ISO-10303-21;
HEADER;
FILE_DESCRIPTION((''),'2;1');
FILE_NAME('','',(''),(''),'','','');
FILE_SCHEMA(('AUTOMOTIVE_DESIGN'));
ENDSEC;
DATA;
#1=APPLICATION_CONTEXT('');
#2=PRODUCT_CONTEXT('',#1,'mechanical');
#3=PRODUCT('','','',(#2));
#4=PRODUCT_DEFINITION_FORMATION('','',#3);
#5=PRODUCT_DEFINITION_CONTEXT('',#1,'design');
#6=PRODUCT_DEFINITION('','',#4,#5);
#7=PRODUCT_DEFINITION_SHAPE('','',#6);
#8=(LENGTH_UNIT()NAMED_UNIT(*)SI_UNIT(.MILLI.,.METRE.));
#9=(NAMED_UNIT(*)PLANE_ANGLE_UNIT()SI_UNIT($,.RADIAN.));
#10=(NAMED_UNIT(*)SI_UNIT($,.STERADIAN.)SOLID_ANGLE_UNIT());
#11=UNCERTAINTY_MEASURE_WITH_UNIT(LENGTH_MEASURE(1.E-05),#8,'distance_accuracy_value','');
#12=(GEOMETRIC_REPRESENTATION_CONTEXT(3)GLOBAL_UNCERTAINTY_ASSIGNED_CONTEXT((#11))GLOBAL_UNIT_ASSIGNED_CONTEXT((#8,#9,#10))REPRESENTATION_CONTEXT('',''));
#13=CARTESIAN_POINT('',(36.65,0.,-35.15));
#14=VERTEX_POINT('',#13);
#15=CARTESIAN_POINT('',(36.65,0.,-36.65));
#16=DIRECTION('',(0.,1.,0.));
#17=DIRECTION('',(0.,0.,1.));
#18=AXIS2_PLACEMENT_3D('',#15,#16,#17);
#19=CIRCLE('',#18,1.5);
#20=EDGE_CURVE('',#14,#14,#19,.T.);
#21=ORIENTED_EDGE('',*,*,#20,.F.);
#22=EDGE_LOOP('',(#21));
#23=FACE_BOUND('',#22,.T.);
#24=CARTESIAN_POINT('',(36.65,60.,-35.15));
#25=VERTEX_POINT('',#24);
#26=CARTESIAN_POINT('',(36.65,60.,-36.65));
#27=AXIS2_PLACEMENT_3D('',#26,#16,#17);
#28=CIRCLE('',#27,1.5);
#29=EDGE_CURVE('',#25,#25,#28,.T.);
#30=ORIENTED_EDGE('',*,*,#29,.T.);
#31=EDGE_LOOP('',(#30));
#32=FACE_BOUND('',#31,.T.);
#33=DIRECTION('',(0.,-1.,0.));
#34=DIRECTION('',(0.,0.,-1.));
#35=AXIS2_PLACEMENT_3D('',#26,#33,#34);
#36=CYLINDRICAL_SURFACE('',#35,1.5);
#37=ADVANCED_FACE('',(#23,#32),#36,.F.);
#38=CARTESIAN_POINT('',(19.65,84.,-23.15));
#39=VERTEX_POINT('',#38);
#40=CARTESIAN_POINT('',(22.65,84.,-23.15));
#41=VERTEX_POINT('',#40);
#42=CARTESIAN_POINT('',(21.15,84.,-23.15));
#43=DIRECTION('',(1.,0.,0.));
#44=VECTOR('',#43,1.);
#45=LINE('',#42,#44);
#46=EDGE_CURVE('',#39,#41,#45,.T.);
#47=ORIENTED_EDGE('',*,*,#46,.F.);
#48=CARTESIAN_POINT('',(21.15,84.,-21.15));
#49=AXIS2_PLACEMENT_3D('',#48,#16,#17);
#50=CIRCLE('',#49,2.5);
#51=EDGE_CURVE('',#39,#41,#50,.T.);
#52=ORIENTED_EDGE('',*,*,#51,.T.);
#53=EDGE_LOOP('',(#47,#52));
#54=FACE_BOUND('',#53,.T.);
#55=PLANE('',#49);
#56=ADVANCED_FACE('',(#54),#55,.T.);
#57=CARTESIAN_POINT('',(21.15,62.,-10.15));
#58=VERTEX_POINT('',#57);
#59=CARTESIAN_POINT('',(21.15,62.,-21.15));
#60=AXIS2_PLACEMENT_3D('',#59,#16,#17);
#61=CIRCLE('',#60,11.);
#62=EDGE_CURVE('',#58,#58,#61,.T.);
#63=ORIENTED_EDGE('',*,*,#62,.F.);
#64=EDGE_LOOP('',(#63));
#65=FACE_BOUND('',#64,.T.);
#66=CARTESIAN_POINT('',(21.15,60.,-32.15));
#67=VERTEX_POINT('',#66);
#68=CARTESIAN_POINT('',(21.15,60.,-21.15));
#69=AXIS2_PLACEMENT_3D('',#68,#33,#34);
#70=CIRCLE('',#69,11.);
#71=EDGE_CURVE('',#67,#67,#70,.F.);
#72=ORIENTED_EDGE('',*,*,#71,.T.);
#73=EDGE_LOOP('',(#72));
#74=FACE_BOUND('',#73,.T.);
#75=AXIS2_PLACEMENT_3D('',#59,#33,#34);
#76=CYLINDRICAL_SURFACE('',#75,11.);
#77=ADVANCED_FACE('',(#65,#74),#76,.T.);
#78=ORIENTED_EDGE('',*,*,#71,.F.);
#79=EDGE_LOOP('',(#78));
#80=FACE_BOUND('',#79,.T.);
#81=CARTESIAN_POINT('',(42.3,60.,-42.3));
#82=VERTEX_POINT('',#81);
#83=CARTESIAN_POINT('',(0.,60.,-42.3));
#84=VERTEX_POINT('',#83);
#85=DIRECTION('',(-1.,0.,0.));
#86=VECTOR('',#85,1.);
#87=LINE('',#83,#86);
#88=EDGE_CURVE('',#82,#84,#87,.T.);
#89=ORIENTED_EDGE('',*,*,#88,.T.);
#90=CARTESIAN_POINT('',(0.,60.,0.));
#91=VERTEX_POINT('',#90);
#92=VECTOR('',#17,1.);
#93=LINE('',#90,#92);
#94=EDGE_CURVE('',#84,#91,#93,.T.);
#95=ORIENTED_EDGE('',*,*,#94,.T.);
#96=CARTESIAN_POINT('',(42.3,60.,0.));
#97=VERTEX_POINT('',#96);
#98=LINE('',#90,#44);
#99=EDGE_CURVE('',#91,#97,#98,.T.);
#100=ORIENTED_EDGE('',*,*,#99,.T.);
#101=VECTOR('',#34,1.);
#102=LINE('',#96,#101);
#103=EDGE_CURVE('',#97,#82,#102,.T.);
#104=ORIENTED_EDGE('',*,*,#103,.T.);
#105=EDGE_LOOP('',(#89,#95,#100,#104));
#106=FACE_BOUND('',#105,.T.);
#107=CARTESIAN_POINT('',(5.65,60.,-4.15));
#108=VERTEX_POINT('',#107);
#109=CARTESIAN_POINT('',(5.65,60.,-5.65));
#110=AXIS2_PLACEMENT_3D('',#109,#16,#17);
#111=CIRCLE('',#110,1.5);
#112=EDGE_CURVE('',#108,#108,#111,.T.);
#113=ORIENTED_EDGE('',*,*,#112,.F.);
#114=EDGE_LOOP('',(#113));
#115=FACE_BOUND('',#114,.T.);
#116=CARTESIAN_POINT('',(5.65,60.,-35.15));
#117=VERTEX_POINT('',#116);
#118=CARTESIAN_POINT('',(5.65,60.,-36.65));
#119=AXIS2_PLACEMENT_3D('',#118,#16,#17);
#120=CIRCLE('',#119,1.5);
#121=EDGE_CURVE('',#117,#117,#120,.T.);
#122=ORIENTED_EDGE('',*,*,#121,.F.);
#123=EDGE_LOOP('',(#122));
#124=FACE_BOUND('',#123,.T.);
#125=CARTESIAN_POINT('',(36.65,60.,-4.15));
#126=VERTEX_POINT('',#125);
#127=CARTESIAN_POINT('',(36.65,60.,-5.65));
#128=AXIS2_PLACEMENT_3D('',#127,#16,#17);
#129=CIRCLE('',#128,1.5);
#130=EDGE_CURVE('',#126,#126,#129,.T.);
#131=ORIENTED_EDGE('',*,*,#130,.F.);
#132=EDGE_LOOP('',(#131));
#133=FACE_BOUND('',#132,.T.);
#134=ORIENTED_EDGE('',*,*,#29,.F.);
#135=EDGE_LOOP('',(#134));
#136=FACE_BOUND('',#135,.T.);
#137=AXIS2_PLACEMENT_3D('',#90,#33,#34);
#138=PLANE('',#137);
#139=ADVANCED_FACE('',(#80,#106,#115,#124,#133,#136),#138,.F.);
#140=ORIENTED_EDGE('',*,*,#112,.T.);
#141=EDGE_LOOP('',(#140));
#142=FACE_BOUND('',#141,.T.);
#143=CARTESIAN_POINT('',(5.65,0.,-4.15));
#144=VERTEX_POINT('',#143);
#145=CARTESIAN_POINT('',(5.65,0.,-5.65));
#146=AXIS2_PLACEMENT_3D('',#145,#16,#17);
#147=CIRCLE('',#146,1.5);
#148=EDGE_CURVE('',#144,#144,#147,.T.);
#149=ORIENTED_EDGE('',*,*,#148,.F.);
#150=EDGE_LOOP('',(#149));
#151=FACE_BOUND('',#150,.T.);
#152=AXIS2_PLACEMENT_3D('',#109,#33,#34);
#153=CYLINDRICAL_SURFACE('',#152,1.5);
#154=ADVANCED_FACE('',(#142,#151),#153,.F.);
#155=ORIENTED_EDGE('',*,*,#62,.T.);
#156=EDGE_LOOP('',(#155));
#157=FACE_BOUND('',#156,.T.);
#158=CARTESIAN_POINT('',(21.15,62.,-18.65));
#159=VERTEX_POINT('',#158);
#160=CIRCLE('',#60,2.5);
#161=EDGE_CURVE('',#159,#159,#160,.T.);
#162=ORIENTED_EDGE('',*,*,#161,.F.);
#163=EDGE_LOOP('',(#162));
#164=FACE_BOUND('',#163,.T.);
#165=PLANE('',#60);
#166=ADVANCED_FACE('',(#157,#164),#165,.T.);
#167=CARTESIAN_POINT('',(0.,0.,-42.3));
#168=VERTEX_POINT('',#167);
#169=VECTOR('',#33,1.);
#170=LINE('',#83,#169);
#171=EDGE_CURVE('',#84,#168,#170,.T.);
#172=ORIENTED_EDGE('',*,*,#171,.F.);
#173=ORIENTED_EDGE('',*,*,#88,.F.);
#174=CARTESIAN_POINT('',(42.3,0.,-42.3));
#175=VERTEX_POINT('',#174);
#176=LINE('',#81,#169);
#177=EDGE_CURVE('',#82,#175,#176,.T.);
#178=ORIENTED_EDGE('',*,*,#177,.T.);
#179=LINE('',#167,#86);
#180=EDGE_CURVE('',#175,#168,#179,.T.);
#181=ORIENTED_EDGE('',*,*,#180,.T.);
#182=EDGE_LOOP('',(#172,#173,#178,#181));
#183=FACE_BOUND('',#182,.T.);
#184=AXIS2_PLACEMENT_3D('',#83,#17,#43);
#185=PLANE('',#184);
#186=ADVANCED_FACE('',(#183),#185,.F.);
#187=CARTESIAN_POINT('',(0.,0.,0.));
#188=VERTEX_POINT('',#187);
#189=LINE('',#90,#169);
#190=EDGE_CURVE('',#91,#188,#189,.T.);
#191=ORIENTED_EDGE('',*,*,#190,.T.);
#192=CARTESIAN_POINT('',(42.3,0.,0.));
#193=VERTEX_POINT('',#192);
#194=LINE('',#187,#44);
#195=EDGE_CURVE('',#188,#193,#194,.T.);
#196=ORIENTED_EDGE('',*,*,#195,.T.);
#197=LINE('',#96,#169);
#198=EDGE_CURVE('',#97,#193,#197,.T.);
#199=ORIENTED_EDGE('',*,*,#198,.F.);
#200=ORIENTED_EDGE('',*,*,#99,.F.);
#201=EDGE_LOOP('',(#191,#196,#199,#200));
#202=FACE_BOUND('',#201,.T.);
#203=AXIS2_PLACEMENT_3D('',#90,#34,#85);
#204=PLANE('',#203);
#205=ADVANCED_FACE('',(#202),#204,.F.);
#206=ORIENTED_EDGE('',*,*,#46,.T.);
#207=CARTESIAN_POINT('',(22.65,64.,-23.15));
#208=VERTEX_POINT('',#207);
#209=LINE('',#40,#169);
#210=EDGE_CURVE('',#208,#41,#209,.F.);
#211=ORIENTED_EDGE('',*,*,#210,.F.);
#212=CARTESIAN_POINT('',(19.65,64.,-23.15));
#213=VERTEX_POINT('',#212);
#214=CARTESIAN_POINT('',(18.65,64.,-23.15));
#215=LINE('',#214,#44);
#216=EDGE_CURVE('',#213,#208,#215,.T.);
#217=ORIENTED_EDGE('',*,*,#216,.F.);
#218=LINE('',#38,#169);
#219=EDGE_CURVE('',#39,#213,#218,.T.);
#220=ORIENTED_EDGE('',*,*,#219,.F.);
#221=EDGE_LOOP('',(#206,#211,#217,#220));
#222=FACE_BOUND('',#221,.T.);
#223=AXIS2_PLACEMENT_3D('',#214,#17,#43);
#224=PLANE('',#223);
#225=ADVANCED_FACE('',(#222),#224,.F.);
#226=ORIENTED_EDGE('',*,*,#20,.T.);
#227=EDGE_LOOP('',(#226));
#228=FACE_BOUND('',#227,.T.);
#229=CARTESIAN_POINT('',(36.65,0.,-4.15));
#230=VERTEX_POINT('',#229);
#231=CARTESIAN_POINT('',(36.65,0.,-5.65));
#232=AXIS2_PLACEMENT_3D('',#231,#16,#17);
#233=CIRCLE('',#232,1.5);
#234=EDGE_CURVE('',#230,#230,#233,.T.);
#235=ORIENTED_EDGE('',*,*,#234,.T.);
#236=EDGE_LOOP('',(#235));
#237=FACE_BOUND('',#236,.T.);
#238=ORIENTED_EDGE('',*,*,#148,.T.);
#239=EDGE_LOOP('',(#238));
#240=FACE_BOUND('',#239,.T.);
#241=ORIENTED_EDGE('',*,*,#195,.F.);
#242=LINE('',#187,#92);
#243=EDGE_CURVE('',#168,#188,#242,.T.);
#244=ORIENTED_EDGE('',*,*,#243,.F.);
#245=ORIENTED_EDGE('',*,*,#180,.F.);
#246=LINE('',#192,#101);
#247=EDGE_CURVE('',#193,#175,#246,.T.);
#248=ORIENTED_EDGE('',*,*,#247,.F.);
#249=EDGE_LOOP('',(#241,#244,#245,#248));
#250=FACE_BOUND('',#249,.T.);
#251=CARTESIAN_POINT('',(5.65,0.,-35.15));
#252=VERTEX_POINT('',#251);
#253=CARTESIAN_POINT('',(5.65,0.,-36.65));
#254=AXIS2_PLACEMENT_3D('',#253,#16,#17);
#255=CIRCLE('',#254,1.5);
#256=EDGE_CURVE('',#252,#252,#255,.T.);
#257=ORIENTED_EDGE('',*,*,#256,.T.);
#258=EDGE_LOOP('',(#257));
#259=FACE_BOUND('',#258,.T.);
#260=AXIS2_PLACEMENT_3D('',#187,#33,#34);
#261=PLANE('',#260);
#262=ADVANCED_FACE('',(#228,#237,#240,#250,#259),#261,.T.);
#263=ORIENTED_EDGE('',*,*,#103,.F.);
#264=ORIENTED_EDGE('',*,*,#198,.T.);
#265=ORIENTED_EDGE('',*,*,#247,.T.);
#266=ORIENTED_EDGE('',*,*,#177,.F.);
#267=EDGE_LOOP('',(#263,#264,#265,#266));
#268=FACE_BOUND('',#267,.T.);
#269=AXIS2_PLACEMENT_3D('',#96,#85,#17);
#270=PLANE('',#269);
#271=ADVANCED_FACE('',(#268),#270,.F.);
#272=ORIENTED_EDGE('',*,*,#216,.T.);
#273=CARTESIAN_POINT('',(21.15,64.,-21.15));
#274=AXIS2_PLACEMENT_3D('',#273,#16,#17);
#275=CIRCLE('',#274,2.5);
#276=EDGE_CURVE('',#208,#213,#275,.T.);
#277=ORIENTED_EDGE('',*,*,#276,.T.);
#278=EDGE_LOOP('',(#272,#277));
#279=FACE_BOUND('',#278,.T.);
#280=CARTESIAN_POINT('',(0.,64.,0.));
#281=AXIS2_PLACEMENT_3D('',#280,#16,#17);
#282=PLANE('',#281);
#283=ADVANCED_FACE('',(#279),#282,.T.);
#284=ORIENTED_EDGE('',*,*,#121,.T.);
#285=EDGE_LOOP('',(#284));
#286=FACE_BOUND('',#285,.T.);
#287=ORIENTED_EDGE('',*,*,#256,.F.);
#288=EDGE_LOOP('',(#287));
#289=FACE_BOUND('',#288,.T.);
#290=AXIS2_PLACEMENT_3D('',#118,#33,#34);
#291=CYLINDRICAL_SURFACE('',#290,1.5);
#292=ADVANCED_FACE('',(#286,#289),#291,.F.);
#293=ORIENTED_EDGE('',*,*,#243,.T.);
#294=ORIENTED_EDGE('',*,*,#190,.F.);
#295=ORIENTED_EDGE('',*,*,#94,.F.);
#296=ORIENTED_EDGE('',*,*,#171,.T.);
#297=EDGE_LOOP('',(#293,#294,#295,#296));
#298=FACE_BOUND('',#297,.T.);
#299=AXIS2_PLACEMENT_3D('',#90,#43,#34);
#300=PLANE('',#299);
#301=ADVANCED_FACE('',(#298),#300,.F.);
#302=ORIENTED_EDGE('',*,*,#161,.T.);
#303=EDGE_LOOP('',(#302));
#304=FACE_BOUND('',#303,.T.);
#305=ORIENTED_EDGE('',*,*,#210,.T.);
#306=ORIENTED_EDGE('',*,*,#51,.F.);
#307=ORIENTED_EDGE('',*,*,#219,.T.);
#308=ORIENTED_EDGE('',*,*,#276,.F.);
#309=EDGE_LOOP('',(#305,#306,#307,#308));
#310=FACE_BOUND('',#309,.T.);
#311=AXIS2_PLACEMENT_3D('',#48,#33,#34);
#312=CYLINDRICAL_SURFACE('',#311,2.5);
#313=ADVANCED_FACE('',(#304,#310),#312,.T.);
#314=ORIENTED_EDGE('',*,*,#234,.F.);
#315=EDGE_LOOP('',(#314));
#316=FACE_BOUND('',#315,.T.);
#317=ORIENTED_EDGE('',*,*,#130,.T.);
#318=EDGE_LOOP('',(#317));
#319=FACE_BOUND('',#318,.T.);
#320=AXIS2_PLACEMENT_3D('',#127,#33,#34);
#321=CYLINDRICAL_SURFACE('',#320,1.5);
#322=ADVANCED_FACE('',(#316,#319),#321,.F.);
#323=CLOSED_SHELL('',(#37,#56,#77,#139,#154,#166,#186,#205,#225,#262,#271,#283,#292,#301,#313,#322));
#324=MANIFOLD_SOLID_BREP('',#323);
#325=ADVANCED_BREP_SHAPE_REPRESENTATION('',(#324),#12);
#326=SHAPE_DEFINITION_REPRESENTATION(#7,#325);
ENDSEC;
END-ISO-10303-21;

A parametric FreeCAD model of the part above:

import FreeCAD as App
import Part
import Sketcher

doc = App.newDocument("Part")
body = doc.addObject("PartDesign::Body", "Body")

sketch1 = body.newObject("Sketcher::SketchObject", "Sketch")
sketch1.AttachmentSupport = (doc.getObject("XZ_Plane"), [""])
sketch1.MapMode = "FlatFace"
sketch1.addGeometry(Part.LineSegment(App.Vector(0, -42.3, 0), App.Vector(0, 0, 0)), False)
sketch1.addGeometry(Part.LineSegment(App.Vector(0, 0, 0), App.Vector(42.3, 0, 0)), False)
sketch1.addGeometry(Part.LineSegment(App.Vector(42.3, 0, 0), App.Vector(42.3, -42.3, 0)), False)
sketch1.addGeometry(Part.LineSegment(App.Vector(42.3, -42.3, 0), App.Vector(0, -42.3, 0)), False)
sketch1.addGeometry(Part.Circle(App.Vector(5.65, -5.65, 0), App.Vector(0, 0, 1), 1.5), False)
sketch1.addGeometry(Part.Circle(App.Vector(36.65, -5.65, 0), App.Vector(0, 0, 1), 1.5), False)
sketch1.addGeometry(Part.Circle(App.Vector(5.65, -36.65, 0), App.Vector(0, 0, 1), 1.5), False)
sketch1.addGeometry(Part.Circle(App.Vector(36.65, -36.65, 0), App.Vector(0, 0, 1), 1.5), False)
sketch1.addConstraint(Sketcher.Constraint("Coincident", 0, 2, 1, 1))
sketch1.addConstraint(Sketcher.Constraint("Coincident", 1, 2, 2, 1))
sketch1.addConstraint(Sketcher.Constraint("Coincident", 2, 2, 3, 1))
sketch1.addConstraint(Sketcher.Constraint("Coincident", 3, 2, 0, 1))
sketch1.addConstraint(Sketcher.Constraint("Vertical", 0))
sketch1.addConstraint(Sketcher.Constraint("Horizontal", 1))
sketch1.addConstraint(Sketcher.Constraint("Vertical", 2))
sketch1.addConstraint(Sketcher.Constraint("Horizontal", 3))
sketch1.addConstraint(Sketcher.Constraint("Coincident", 0, 2, -1, 1))
sketch1.addConstraint(Sketcher.Constraint("Equal", 4, 5))
sketch1.addConstraint(Sketcher.Constraint("Equal", 5, 6))
sketch1.addConstraint(Sketcher.Constraint("Equal", 6, 7))
sketch1.addConstraint(Sketcher.Constraint("Horizontal", 4, 3, 5, 3))
sketch1.addConstraint(Sketcher.Constraint("Horizontal", 6, 3, 7, 3))
sketch1.addConstraint(Sketcher.Constraint("Vertical", 4, 3, 6, 3))
sketch1.addConstraint(Sketcher.Constraint("Vertical", 5, 3, 7, 3))
sketch1.addConstraint(Sketcher.Constraint("Equal", 3, 0))
sketch1.addConstraint(Sketcher.Constraint("Diameter", 4, 3.0))
sketch1.addConstraint(Sketcher.Constraint("DistanceX", 1, 1, 1, 2, 42.3))
sketch1.addConstraint(Sketcher.Constraint("DistanceX", 4, 3, 5, 3, 31.0))
sketch1.addConstraint(Sketcher.Constraint("DistanceY", 6, 3, 4, 3, 31.0))
sketch1.addConstraint(Sketcher.Constraint("DistanceX", -1, 1, 4, 3, 5.65))
sketch1.addConstraint(Sketcher.Constraint("DistanceY", 4, 3, -1, 1, 5.65))
pad1 = body.newObject("PartDesign::Pad", "Pad")
pad1.Profile = sketch1
pad1.Length = 60
pad1.Reversed = True

sketch2 = body.newObject("Sketcher::SketchObject", "Sketch001")
sketch2.AttachmentSupport = (doc.getObject("XZ_Plane"), [""])
sketch2.MapMode = "FlatFace"
sketch2.AttachmentOffset = App.Placement(App.Vector(0, 0, -60), App.Rotation())
sketch2.addGeometry(Part.Circle(App.Vector(21.15, -21.15, 0), App.Vector(0, 0, 1), 11), False)
sketch2.addConstraint(Sketcher.Constraint("Diameter", 0, 22.0))
sketch2.addConstraint(Sketcher.Constraint("DistanceX", -1, 1, 0, 3, 21.15))
sketch2.addConstraint(Sketcher.Constraint("DistanceY", 0, 3, -1, 1, 21.15))
pad2 = body.newObject("PartDesign::Pad", "Pad001")
pad2.Profile = sketch2
pad2.Length = 2
pad2.Reversed = True

sketch3 = body.newObject("Sketcher::SketchObject", "Sketch002")
sketch3.AttachmentSupport = (doc.getObject("XZ_Plane"), [""])
sketch3.MapMode = "FlatFace"
sketch3.AttachmentOffset = App.Placement(App.Vector(0, 0, -62), App.Rotation())
sketch3.addGeometry(Part.Circle(App.Vector(21.15, -21.15, 0), App.Vector(0, 0, 1), 2.5), False)
sketch3.addConstraint(Sketcher.Constraint("Diameter", 0, 5.0))
sketch3.addConstraint(Sketcher.Constraint("DistanceX", -1, 1, 0, 3, 21.15))
sketch3.addConstraint(Sketcher.Constraint("DistanceY", 0, 3, -1, 1, 21.15))
pad3 = body.newObject("PartDesign::Pad", "Pad002")
pad3.Profile = sketch3
pad3.Length = 22
pad3.Reversed = True

sketch4 = body.newObject("Sketcher::SketchObject", "Sketch003")
sketch4.AttachmentSupport = (doc.getObject("XZ_Plane"), [""])
sketch4.MapMode = "FlatFace"
sketch4.AttachmentOffset = App.Placement(App.Vector(0, 0, -84), App.Rotation())
sketch4.addGeometry(Part.LineSegment(App.Vector(18.65, -23.65, 0), App.Vector(18.65, -23.15, 0)), False)
sketch4.addGeometry(Part.LineSegment(App.Vector(18.65, -23.15, 0), App.Vector(23.65, -23.15, 0)), False)
sketch4.addGeometry(Part.LineSegment(App.Vector(23.65, -23.15, 0), App.Vector(23.65, -23.65, 0)), False)
sketch4.addGeometry(Part.LineSegment(App.Vector(23.65, -23.65, 0), App.Vector(18.65, -23.65, 0)), False)
sketch4.addConstraint(Sketcher.Constraint("Coincident", 0, 2, 1, 1))
sketch4.addConstraint(Sketcher.Constraint("Coincident", 1, 2, 2, 1))
sketch4.addConstraint(Sketcher.Constraint("Coincident", 2, 2, 3, 1))
sketch4.addConstraint(Sketcher.Constraint("Coincident", 3, 2, 0, 1))
sketch4.addConstraint(Sketcher.Constraint("Vertical", 0))
sketch4.addConstraint(Sketcher.Constraint("Horizontal", 1))
sketch4.addConstraint(Sketcher.Constraint("Vertical", 2))
sketch4.addConstraint(Sketcher.Constraint("Horizontal", 3))
sketch4.addConstraint(Sketcher.Constraint("DistanceX", 1, 1, 1, 2, 5.0))
sketch4.addConstraint(Sketcher.Constraint("DistanceY", 0, 1, 0, 2, 0.5))
sketch4.addConstraint(Sketcher.Constraint("DistanceX", -1, 1, 0, 2, 18.65))
sketch4.addConstraint(Sketcher.Constraint("DistanceY", 0, 2, -1, 1, 23.15))
pocket1 = body.newObject("PartDesign::Pocket", "Pocket")
pocket1.Profile = sketch4
pocket1.Length = 20
pocket1.Reversed = True

doc.recompute()
